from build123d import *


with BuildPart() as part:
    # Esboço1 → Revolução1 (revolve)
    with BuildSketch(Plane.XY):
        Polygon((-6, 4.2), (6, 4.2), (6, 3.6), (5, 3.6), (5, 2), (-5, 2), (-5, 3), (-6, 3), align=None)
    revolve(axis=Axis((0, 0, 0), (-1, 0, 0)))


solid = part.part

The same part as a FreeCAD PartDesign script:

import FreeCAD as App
import Part
import Sketcher
from FreeCAD import Vector

doc = App.newDocument("Part")
params = doc.addObject("Spreadsheet::Sheet", "Params")
for row, (alias, value) in enumerate([
    ("sketch1_width", "12 mm"),
    ("sketch1_width2", "1 mm"),
    ("sketch1_height", "1.2 mm"),
    ("sketch1_height2", "1.6 mm"),
    ("revolution_angle", "360 deg"),
], start=1):
    params.set(f"A{row}", alias)
    params.set(f"B{row}", "=" + value)
    params.setAlias(f"B{row}", alias)

body = doc.addObject("PartDesign::Body", "Body")

# Sketch on XY plane
sketch1 = body.newObject("Sketcher::SketchObject", "Sketch")
sketch1.AttachmentSupport = (doc.getObject("XY_Plane"), [""])
sketch1.MapMode = "FlatFace"
sketch1.addGeometry([
    Part.LineSegment(Vector(6, 4.2, 0), Vector(-6, 4.2, 0)),  # 0
    Part.LineSegment(Vector(-6, 4.2, 0), Vector(-6, 3, 0)),  # 1
    Part.LineSegment(Vector(-6, 3, 0), Vector(-5, 3, 0)),  # 2
    Part.LineSegment(Vector(-5, 3, 0), Vector(-5, 2, 0)),  # 3
    Part.LineSegment(Vector(-5, 2, 0), Vector(5, 2, 0)),  # 4
    Part.LineSegment(Vector(5, 2, 0), Vector(5, 3.6, 0)),  # 5
    Part.LineSegment(Vector(5, 3.6, 0), Vector(6, 3.6, 0)),  # 6
    Part.LineSegment(Vector(6, 3.6, 0), Vector(6, 4.2, 0)),  # 7
], False)
sketch1.addConstraint([
    Sketcher.Constraint("Coincident", 0, 2, 1, 1),
    Sketcher.Constraint("Coincident", 1, 2, 2, 1),
    Sketcher.Constraint("Coincident", 2, 2, 3, 1),
    Sketcher.Constraint("Coincident", 3, 2, 4, 1),
    Sketcher.Constraint("Coincident", 4, 2, 5, 1),
    Sketcher.Constraint("Coincident", 5, 2, 6, 1),
    Sketcher.Constraint("Coincident", 6, 2, 7, 1),
    Sketcher.Constraint("Coincident", 7, 2, 0, 1),
    Sketcher.Constraint("Horizontal", 0),
    Sketcher.Constraint("Vertical", 1),
    Sketcher.Constraint("Horizontal", 2),
    Sketcher.Constraint("Vertical", 3),
    Sketcher.Constraint("Horizontal", 4),
    Sketcher.Constraint("Vertical", 5),
    Sketcher.Constraint("Horizontal", 6),
    Sketcher.Constraint("Vertical", 7),
    Sketcher.Constraint("Equal", 2, 6),
    Sketcher.Constraint("Equal", 6, 3),
    Sketcher.Constraint("DistanceX", 0, 2, 0, 1, 12.0),
    Sketcher.Constraint("DistanceX", 2, 1, 2, 2, 1.0),
    Sketcher.Constraint("DistanceY", 1, 2, 1, 1, 1.2),
    Sketcher.Constraint("DistanceY", 5, 1, 5, 2, 1.6),
    Sketcher.Constraint("DistanceX", 0, 2, -1, 1, 6.0),
    Sketcher.Constraint("DistanceY", -1, 1, 1, 2, 3.0),
])
sketch1.setExpression("Constraints[18]", "Params.sketch1_width")
sketch1.setExpression("Constraints[19]", "Params.sketch1_width2")
sketch1.setExpression("Constraints[20]", "Params.sketch1_height")
sketch1.setExpression("Constraints[21]", "Params.sketch1_height2")
revolution = body.newObject("PartDesign::Revolution", "Revolution")
revolution.Profile = sketch1
revolution.ReferenceAxis = (sketch1, ["H_Axis"])
revolution.setExpression("Angle", "Params.revolution_angle")

doc.recompute()
